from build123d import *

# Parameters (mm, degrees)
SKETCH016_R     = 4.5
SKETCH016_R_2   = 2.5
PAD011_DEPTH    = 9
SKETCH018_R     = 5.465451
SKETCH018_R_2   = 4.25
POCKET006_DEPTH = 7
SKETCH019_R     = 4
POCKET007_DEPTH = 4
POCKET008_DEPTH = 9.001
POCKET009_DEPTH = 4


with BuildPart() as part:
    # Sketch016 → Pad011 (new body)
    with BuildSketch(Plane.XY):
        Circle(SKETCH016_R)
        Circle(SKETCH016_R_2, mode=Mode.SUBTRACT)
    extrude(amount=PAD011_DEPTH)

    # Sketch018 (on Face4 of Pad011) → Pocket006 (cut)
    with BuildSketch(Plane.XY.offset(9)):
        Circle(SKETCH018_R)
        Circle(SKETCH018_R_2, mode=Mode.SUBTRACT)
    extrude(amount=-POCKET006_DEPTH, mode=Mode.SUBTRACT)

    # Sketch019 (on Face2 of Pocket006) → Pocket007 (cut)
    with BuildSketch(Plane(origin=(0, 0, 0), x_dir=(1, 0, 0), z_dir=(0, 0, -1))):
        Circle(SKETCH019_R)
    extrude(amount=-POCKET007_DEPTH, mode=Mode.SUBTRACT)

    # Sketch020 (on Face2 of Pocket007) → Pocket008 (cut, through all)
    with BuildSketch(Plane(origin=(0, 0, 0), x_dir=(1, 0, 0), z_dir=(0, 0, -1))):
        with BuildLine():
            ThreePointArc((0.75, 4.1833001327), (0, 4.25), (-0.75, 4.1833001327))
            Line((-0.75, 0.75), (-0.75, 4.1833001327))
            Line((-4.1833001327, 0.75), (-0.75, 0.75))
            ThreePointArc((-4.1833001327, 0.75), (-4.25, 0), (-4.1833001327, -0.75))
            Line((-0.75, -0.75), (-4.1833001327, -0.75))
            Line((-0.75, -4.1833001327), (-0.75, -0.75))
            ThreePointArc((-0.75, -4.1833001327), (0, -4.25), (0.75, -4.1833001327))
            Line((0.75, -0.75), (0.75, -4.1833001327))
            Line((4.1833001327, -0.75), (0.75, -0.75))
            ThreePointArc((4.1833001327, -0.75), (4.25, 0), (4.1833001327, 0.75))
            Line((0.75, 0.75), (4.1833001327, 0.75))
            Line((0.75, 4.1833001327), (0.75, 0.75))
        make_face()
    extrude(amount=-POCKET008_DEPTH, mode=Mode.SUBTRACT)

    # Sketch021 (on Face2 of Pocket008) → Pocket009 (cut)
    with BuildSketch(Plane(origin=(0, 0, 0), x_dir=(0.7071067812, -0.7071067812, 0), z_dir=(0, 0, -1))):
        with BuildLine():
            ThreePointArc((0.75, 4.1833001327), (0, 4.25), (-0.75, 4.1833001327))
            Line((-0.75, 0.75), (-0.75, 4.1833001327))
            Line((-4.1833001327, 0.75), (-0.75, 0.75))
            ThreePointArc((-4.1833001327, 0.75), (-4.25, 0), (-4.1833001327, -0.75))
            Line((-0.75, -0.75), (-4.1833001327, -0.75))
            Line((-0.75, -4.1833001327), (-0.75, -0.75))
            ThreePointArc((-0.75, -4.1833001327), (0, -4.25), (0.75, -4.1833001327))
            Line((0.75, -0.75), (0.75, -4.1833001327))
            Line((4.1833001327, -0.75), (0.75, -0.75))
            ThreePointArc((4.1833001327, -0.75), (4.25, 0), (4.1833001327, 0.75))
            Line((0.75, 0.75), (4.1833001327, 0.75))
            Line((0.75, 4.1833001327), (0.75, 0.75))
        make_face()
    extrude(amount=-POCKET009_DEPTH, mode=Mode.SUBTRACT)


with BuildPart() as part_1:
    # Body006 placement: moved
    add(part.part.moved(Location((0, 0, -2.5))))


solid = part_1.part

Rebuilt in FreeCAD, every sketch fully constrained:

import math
import FreeCAD as App
import Part
import Sketcher
from FreeCAD import Vector

doc = App.newDocument("Part")
body = doc.addObject("PartDesign::Body", "Body")

sketch1 = doc.addObject("Sketcher::SketchObject", "Sketch")
body.addObject(sketch1)
sketch1.AttachmentSupport = (doc.XY_Plane, [""])
sketch1.MapMode = "FlatFace"
sketch1.addGeometry([
    Part.Circle(Vector(0, 0, 0), Vector(0, 0, 1), 4.5),
    Part.Circle(Vector(0, 0, 0), Vector(0, 0, 1), 2.5),
], False)
sketch1.addConstraint([
    Sketcher.Constraint("Coincident", 0, 3, -1, 1),
    Sketcher.Constraint("Coincident", 1, 3, -1, 1),
    Sketcher.Constraint("Diameter", 0, 9.0),
    Sketcher.Constraint("Diameter", 1, 5.0),
])
pad1 = doc.addObject("PartDesign::Pad", "Pad")
body.addObject(pad1)
pad1.Profile = sketch1
pad1.Length = 9

sketch2 = doc.addObject("Sketcher::SketchObject", "Sketch001")
body.addObject(sketch2)
sketch2.AttachmentSupport = (doc.XY_Plane, [""])
sketch2.MapMode = "FlatFace"
sketch2.AttachmentOffset = App.Placement(Vector(0, 0, 9), App.Rotation())
sketch2.addGeometry([
    Part.Circle(Vector(0, 0, 0), Vector(0, 0, 1), 5.5),
    Part.Circle(Vector(0, 0, 0), Vector(0, 0, 1), 4.2),
], False)
sketch2.addConstraint([
    Sketcher.Constraint("Coincident", 0, 3, -1, 1),
    Sketcher.Constraint("Coincident", 1, 3, -1, 1),
    Sketcher.Constraint("Diameter", 1, 8.5),
    Sketcher.Constraint("Diameter", 0, 10.930902),
])
pocket1 = doc.addObject("PartDesign::Pocket", "Pocket")
body.addObject(pocket1)
pocket1.Profile = sketch2
pocket1.Length = 7

sketch3 = doc.addObject("Sketcher::SketchObject", "Sketch002")
body.addObject(sketch3)
sketch3.AttachmentSupport = (doc.XY_Plane, [""])
sketch3.MapMode = "FlatFace"
sketch3.addGeometry(Part.Circle(Vector(0, 0, 0), Vector(0, 0, 1), 4), False)
sketch3.addConstraint([
    Sketcher.Constraint("Coincident", 0, 3, -1, 1),
    Sketcher.Constraint("Diameter", 0, 8.0),
])
pocket2 = doc.addObject("PartDesign::Pocket", "Pocket001")
body.addObject(pocket2)
pocket2.Profile = sketch3
pocket2.Length = 4
pocket2.Reversed = True

sketch4 = doc.addObject("Sketcher::SketchObject", "Sketch003")
body.addObject(sketch4)
sketch4.AttachmentSupport = (doc.XY_Plane, [""])
sketch4.MapMode = "FlatFace"
sketch4.addGeometry([
    Part.ArcOfCircle(Part.Circle(Vector(0, 0, 0), Vector(0, 0, 1), 4.3), math.radians(-100), math.radians(-80)),
    Part.LineSegment(Vector(-0.8, -4.2, 0), Vector(-0.8, -0.8, 0)),
    Part.LineSegment(Vector(-0.8, -0.8, 0), Vector(-4.2, -0.8, 0)),
    Part.ArcOfCircle(Part.Circle(Vector(0, 0, 0), Vector(0, 0, 1), 4.3), math.radians(170), math.radians(190)),
    Part.LineSegment(Vector(-4.2, 0.8, 0), Vector(-0.8, 0.8, 0)),
    Part.LineSegment(Vector(-0.8, 0.8, 0), Vector(-0.8, 4.2, 0)),
    Part.ArcOfCircle(Part.Circle(Vector(0, 0, 0), Vector(0, 0, 1), 4.3), math.radians(80), math.radians(100)),
    Part.LineSegment(Vector(0.8, 4.2, 0), Vector(0.8, 0.8, 0)),
    Part.LineSegment(Vector(0.8, 0.8, 0), Vector(4.2, 0.8, 0)),
    Part.ArcOfCircle(Part.Circle(Vector(0, 0, 0), Vector(0, 0, 1), 4.3), math.radians(-10), math.radians(10)),
    Part.LineSegment(Vector(4.2, -0.8, 0), Vector(0.8, -0.8, 0)),
    Part.LineSegment(Vector(0.8, -0.8, 0), Vector(0.8, -4.2, 0)),
], False)
sketch4.addConstraint([
    Sketcher.Constraint("Coincident", 0, 1, 1, 1),
    Sketcher.Constraint("Coincident", 1, 2, 2, 1),
    Sketcher.Constraint("Coincident", 2, 2, 3, 2),
    Sketcher.Constraint("Coincident", 3, 1, 4, 1),
    Sketcher.Constraint("Coincident", 4, 2, 5, 1),
    Sketcher.Constraint("Coincident", 5, 2, 6, 2),
    Sketcher.Constraint("Coincident", 6, 1, 7, 1),
    Sketcher.Constraint("Coincident", 7, 2, 8, 1),
    Sketcher.Constraint("Coincident", 8, 2, 9, 2),
    Sketcher.Constraint("Coincident", 9, 1, 10, 1),
    Sketcher.Constraint("Coincident", 10, 2, 11, 1),
    Sketcher.Constraint("Coincident", 11, 2, 0, 2),
    Sketcher.Constraint("Vertical", 1),
    Sketcher.Constraint("Horizontal", 2),
    Sketcher.Constraint("Horizontal", 4),
    Sketcher.Constraint("Vertical", 5),
    Sketcher.Constraint("Vertical", 7),
    Sketcher.Constraint("Horizontal", 8),
    Sketcher.Constraint("Horizontal", 10),
    Sketcher.Constraint("Vertical", 11),
    Sketcher.Constraint("Coincident", 0, 3, -1, 1),
    Sketcher.Constraint("Coincident", 3, 3, -1, 1),
    Sketcher.Constraint("Coincident", 6, 3, -1, 1),
    Sketcher.Constraint("Coincident", 9, 3, -1, 1),
    Sketcher.Constraint("Equal", 0, 3),
    Sketcher.Constraint("Equal", 3, 6),
    Sketcher.Constraint("Equal", 6, 9),
    Sketcher.Constraint("Symmetric", 1, 2, 7, 2, -1, 1),
    Sketcher.Constraint("Symmetric", 4, 2, 10, 2, -1, 1),
    Sketcher.Constraint("Symmetric", 4, 2, 7, 2, -2),
    Sketcher.Constraint("Equal", 10, 1),
    Sketcher.Constraint("Radius", 0, 4.25),
    Sketcher.Constraint("DistanceY", 2, 2, 3, 1, 1.5),
])
pocket3 = doc.addObject("PartDesign::Pocket", "Pocket002")
body.addObject(pocket3)
pocket3.Profile = sketch4
pocket3.Type = "ThroughAll"
pocket3.Reversed = True

sketch5 = doc.addObject("Sketcher::SketchObject", "Sketch004")
body.addObject(sketch5)
sketch5.AttachmentSupport = (doc.XY_Plane, [""])
sketch5.MapMode = "FlatFace"
sketch5.addGeometry([
    Part.ArcOfCircle(Part.Circle(Vector(0, 0, 0), Vector(0, 0, 1), 4.3), math.radians(-145), math.radians(-125)),
    Part.LineSegment(Vector(-3.5, -2.4, 0), Vector(-1.1, 0, 0)),
    Part.LineSegment(Vector(-1.1, 0, 0), Vector(-3.5, 2.4, 0)),
    Part.ArcOfCircle(Part.Circle(Vector(0, 0, 0), Vector(0, 0, 1), 4.3), math.radians(125), math.radians(145)),
    Part.LineSegment(Vector(-2.4, 3.5, 0), Vector(0, 1.1, 0)),
    Part.LineSegment(Vector(0, 1.1, 0), Vector(2.4, 3.5, 0)),
    Part.ArcOfCircle(Part.Circle(Vector(0, 0, 0), Vector(0, 0, 1), 4.3), math.radians(35), math.radians(55)),
    Part.LineSegment(Vector(3.5, 2.4, 0), Vector(1.1, 0, 0)),
    Part.LineSegment(Vector(1.1, 0, 0), Vector(3.5, -2.4, 0)),
    Part.ArcOfCircle(Part.Circle(Vector(0, 0, 0), Vector(0, 0, 1), 4.3), math.radians(-55), math.radians(-35)),
    Part.LineSegment(Vector(2.4, -3.5, 0), Vector(0, -1.1, 0)),
    Part.LineSegment(Vector(0, -1.1, 0), Vector(-2.4, -3.5, 0)),
], False)
sketch5.addConstraint([
    Sketcher.Constraint("Coincident", 0, 1, 1, 1),
    Sketcher.Constraint("Coincident", 1, 2, 2, 1),
    Sketcher.Constraint("Coincident", 2, 2, 3, 2),
    Sketcher.Constraint("Coincident", 3, 1, 4, 1),
    Sketcher.Constraint("Coincident", 4, 2, 5, 1),
    Sketcher.Constraint("Coincident", 5, 2, 6, 2),
    Sketcher.Constraint("Coincident", 6, 1, 7, 1),
    Sketcher.Constraint("Coincident", 7, 2, 8, 1),
    Sketcher.Constraint("Coincident", 8, 2, 9, 2),
    Sketcher.Constraint("Coincident", 9, 1, 10, 1),
    Sketcher.Constraint("Coincident", 10, 2, 11, 1),
    Sketcher.Constraint("Coincident", 11, 2, 0, 2),
    Sketcher.Constraint("Coincident", 0, 3, -1, 1),
    Sketcher.Constraint("Coincident", 3, 3, -1, 1),
    Sketcher.Constraint("Coincident", 6, 3, -1, 1),
    Sketcher.Constraint("Coincident", 9, 3, -1, 1),
    Sketcher.Constraint("Equal", 0, 3),
    Sketcher.Constraint("Equal", 3, 6),
    Sketcher.Constraint("Equal", 6, 9),
    Sketcher.Constraint("Symmetric", 1, 2, 7, 2, -1, 1),
    Sketcher.Constraint("Symmetric", 4, 2, 10, 2, -1, 1),
    Sketcher.Constraint("PointOnObject", 1, 2, -1),
    Sketcher.Constraint("PointOnObject", 4, 2, -2),
    Sketcher.Constraint("Perpendicular", 1, 2),
    Sketcher.Constraint("Parallel", 2, 4),
    Sketcher.Constraint("Perpendicular", 4, 5),
    Sketcher.Constraint("Parallel", 5, 7),
    Sketcher.Constraint("Perpendicular", 7, 8),
    Sketcher.Constraint("Parallel", 8, 10),
    Sketcher.Constraint("Perpendicular", 10, 11),
    Sketcher.Constraint("Horizontal", 3, 1, 5, 2),
    Sketcher.Constraint("Equal", 2, 4),
    Sketcher.Constraint("Radius", 0, 4.25),
    Sketcher.Constraint("Distance", 1, 3.4333),
])
pocket4 = doc.addObject("PartDesign::Pocket", "Pocket003")
body.addObject(pocket4)
pocket4.Profile = sketch5
pocket4.Length = 4
pocket4.Reversed = True
body2 = doc.addObject("PartDesign::Body", "Body001")
doc.recompute()

body.Placement = App.Placement(Vector(0, 0, -2.5), App.Rotation(Vector(0, 0, 1), 0))
boolean = doc.addObject("PartDesign::Boolean", "Boolean")
body2.addObject(boolean)
boolean.Type = "Fuse"
boolean.addObjects([body])

doc.recompute()
